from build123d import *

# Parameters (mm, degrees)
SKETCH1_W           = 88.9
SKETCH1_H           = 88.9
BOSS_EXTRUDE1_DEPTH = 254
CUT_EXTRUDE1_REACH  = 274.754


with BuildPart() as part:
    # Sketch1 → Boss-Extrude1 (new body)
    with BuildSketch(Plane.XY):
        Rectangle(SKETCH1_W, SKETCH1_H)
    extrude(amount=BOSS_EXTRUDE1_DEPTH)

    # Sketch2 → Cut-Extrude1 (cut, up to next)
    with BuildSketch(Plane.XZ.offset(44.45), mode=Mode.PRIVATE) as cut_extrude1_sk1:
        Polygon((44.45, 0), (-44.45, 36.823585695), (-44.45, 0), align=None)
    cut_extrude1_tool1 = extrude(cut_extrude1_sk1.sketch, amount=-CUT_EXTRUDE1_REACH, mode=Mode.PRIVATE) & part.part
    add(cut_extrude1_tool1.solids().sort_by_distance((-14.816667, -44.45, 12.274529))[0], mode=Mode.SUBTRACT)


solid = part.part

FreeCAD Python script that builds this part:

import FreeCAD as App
import Part
import Sketcher
Q = App.Units.Quantity


def add_polygon(sketch, points):
    """Adds a closed chain of lines whose ends are joined by coincident constraints."""
    first, n = sketch.GeometryCount, len(points)
    for a, b in zip(points, points[1:] + points[:1]):
        sketch.addGeometry(Part.LineSegment(App.Vector(*a, 0), App.Vector(*b, 0)), False)
    for i in range(n):
        sketch.addConstraint(Sketcher.Constraint("Coincident", first + i, 2, first + (i + 1) % n, 1))

doc = App.newDocument("Part")
params = doc.addObject("Spreadsheet::Sheet", "Params")
for row, (alias, value) in enumerate([
    ("sketch1_width", "3.5 in"),
    ("pad1_length", "10 in"),
    ("sketch2_width", "3.5 in"),
], start=1):
    params.set(f"A{row}", alias)
    params.set(f"B{row}", "=" + value)
    params.setAlias(f"B{row}", alias)

body = doc.addObject("PartDesign::Body", "Body")

sketch1 = doc.addObject("Sketcher::SketchObject", "Sketch")
body.addObject(sketch1)
sketch1.AttachmentSupport = (doc.XY_Plane, [""])
sketch1.MapMode = "FlatFace"
add_polygon(sketch1, [(-44, 44), (-44, -44), (44, -44), (44, 44)])
sketch1.addConstraint(Sketcher.Constraint("Vertical", 0))
sketch1.addConstraint(Sketcher.Constraint("Horizontal", 1))
sketch1.addConstraint(Sketcher.Constraint("Vertical", 2))
sketch1.addConstraint(Sketcher.Constraint("Horizontal", 3))
sketch1.addConstraint(Sketcher.Constraint("Symmetric", 0, 2, 2, 2, -1, 1))
sketch1.addConstraint(Sketcher.Constraint("Equal", 3, 0))
sketch1.addConstraint(Sketcher.Constraint("DistanceX", 1, 1, 1, 2, Q("3.5 in")))
sketch1.setExpression("Constraints[10]", "Params.sketch1_width")
pad1 = doc.addObject("PartDesign::Pad", "Pad")
body.addObject(pad1)
pad1.Profile = sketch1
pad1.setExpression("Length", "Params.pad1_length")

sketch2 = doc.addObject("Sketcher::SketchObject", "Sketch001")
body.addObject(sketch2)
sketch2.AttachmentSupport = (doc.XZ_Plane, [""])
sketch2.MapMode = "FlatFace"
sketch2.AttachmentOffset = App.Placement(App.Vector(0, 0, 1.75 * 25.4), App.Rotation())
add_polygon(sketch2, [(44, 0), (-44, 37), (-44, 0)])
sketch2.addConstraint(Sketcher.Constraint("Vertical", 1))
sketch2.addConstraint(Sketcher.Constraint("Horizontal", 2))
sketch2.addConstraint(Sketcher.Constraint("Symmetric", 1, 2, 2, 2, -1, 1))
sketch2.addConstraint(Sketcher.Constraint("DistanceX", 2, 1, 2, 2, Q("3.5 in")))
sketch2.addConstraint(Sketcher.Constraint("Angle", 0, Q("157.5 deg")))
sketch2.setExpression("Constraints[6]", "Params.sketch2_width")
pocket1 = doc.addObject("PartDesign::Pocket", "Pocket")
body.addObject(pocket1)
pocket1.Profile = sketch2
pocket1.Type = "UpToFirst"

doc.recompute()
